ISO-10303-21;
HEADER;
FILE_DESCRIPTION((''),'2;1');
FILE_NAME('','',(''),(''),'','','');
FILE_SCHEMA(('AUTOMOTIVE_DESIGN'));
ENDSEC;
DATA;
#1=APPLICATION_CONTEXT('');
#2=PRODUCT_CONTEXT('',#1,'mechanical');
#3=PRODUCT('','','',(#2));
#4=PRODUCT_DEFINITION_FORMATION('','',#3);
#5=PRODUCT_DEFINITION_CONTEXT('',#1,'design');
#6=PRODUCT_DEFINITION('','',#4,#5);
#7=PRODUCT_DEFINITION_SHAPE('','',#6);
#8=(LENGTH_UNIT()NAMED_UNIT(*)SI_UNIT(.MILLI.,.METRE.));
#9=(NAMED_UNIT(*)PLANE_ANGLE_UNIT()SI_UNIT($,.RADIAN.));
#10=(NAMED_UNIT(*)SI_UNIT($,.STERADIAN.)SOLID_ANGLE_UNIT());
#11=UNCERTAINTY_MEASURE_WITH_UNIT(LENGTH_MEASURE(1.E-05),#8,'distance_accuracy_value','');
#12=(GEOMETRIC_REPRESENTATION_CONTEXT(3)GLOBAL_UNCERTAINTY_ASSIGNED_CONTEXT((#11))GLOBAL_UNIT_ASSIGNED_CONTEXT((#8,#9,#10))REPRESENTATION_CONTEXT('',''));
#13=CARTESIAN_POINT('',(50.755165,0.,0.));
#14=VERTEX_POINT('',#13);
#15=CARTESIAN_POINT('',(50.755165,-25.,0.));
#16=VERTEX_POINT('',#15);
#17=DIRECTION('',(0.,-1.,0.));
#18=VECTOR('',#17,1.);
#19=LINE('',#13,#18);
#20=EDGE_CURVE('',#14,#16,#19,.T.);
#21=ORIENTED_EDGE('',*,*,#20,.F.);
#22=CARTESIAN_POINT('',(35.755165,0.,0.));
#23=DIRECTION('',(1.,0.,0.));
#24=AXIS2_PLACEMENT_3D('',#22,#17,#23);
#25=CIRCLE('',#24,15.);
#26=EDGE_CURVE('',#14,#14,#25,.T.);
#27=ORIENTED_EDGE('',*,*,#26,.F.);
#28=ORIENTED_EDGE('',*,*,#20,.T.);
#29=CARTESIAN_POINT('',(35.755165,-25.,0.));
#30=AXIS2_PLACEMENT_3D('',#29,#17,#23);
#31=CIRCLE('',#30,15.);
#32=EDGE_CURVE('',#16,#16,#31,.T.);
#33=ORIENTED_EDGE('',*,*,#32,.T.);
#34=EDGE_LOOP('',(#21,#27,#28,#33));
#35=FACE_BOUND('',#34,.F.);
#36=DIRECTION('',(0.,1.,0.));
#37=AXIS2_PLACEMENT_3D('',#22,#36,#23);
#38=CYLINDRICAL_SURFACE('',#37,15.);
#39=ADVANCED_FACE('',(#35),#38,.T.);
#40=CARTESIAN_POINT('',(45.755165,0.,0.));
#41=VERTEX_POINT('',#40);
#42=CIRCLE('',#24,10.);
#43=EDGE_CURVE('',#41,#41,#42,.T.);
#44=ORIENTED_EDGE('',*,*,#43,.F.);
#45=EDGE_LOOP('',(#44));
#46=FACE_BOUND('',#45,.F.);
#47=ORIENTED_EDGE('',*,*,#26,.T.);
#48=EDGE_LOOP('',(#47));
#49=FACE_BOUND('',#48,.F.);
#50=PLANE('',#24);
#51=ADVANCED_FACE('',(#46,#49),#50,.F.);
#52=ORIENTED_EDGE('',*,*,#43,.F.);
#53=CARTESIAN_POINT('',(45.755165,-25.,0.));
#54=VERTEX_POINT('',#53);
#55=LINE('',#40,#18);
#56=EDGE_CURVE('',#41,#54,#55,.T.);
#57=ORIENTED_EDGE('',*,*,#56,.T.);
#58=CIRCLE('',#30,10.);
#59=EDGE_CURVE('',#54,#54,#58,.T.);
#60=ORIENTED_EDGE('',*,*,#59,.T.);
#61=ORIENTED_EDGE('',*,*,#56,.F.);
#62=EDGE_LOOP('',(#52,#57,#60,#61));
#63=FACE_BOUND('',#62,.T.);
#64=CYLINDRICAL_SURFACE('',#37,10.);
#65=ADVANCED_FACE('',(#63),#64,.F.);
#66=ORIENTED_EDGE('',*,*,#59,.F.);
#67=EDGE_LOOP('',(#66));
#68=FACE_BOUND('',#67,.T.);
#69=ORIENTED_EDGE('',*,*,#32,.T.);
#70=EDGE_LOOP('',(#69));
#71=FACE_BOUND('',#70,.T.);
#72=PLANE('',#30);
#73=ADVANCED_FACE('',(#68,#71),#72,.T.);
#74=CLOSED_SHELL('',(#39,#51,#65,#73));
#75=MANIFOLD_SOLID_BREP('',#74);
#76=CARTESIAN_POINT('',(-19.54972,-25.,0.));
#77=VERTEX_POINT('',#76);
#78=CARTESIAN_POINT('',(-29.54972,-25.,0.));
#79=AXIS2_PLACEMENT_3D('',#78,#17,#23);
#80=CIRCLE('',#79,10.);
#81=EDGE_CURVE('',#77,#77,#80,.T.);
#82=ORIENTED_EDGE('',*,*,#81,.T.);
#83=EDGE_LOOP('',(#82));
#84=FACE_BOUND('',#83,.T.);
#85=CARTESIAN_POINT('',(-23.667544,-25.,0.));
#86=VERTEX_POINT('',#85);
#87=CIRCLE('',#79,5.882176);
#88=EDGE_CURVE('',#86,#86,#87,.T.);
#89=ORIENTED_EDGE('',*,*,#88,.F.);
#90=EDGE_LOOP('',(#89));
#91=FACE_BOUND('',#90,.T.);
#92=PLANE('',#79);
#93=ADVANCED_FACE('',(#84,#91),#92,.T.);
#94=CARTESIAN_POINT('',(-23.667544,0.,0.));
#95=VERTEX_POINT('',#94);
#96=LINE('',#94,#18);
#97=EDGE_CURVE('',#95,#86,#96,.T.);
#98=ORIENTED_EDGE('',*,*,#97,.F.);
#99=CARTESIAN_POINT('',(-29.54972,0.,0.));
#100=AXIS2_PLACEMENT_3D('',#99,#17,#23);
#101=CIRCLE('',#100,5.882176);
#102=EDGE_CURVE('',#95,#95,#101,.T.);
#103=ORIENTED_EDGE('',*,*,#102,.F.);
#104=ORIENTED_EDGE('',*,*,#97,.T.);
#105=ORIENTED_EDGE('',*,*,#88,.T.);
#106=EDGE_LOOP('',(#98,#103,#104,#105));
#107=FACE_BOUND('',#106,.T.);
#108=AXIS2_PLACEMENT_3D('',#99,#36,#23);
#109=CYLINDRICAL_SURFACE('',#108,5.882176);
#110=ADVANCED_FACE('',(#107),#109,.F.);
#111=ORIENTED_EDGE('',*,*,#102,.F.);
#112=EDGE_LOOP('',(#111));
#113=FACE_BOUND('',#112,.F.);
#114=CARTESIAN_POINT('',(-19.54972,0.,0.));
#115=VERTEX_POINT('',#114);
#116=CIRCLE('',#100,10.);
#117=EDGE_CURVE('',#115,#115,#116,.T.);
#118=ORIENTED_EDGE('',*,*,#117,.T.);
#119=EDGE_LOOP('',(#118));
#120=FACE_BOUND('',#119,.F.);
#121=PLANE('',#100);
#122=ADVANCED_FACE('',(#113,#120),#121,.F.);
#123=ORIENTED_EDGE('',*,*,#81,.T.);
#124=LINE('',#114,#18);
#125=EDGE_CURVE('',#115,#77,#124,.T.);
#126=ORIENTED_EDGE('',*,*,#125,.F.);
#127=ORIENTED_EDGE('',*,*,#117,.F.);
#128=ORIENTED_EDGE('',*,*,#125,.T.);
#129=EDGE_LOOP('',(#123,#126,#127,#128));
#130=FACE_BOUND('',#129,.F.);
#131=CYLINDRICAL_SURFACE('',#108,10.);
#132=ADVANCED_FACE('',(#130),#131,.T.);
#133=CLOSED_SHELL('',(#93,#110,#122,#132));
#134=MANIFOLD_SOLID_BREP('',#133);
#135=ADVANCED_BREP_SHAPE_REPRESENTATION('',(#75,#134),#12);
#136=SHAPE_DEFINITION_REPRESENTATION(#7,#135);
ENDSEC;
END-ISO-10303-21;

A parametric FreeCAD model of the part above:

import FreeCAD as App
import Part
import Sketcher

V = App.Vector

doc = App.newDocument("Part")
body = doc.addObject("PartDesign::Body", "Body")
body.AllowCompound = True

sketch1 = body.newObject("Sketcher::SketchObject", "Sketch")
sketch1.AttachmentSupport = (doc.getObject("XZ_Plane"), [""])
sketch1.MapMode = "FlatFace"
sketch1.addGeometry([
    Part.Circle(V(-30, 0, 0), V(0, 0, 1), 10),
    Part.Circle(V(-30, 0, 0), V(0, 0, 1), 6),
    Part.Circle(V(36, 0, 0), V(0, 0, 1), 15),
    Part.Circle(V(36, 0, 0), V(0, 0, 1), 10),
], False)
sketch1.addConstraint([
    Sketcher.Constraint("Coincident", 1, 3, 0, 3),
    Sketcher.Constraint("Coincident", 3, 3, 2, 3),
    Sketcher.Constraint("Equal", 0, 3),
    Sketcher.Constraint("PointOnObject", 0, 3, -1),
    Sketcher.Constraint("PointOnObject", 2, 3, -1),
    Sketcher.Constraint("Diameter", 0, 20.0),
    Sketcher.Constraint("Diameter", 2, 30.0),
    Sketcher.Constraint("Diameter", 1, 11.764352),
    Sketcher.Constraint("DistanceX", 0, 3, -1, 1, 29.54972),
    Sketcher.Constraint("DistanceX", -1, 1, 2, 3, 35.755165),
])
pad1 = body.newObject("PartDesign::Pad", "Pad")
pad1.Profile = sketch1
pad1.Length = 25

doc.recompute()
